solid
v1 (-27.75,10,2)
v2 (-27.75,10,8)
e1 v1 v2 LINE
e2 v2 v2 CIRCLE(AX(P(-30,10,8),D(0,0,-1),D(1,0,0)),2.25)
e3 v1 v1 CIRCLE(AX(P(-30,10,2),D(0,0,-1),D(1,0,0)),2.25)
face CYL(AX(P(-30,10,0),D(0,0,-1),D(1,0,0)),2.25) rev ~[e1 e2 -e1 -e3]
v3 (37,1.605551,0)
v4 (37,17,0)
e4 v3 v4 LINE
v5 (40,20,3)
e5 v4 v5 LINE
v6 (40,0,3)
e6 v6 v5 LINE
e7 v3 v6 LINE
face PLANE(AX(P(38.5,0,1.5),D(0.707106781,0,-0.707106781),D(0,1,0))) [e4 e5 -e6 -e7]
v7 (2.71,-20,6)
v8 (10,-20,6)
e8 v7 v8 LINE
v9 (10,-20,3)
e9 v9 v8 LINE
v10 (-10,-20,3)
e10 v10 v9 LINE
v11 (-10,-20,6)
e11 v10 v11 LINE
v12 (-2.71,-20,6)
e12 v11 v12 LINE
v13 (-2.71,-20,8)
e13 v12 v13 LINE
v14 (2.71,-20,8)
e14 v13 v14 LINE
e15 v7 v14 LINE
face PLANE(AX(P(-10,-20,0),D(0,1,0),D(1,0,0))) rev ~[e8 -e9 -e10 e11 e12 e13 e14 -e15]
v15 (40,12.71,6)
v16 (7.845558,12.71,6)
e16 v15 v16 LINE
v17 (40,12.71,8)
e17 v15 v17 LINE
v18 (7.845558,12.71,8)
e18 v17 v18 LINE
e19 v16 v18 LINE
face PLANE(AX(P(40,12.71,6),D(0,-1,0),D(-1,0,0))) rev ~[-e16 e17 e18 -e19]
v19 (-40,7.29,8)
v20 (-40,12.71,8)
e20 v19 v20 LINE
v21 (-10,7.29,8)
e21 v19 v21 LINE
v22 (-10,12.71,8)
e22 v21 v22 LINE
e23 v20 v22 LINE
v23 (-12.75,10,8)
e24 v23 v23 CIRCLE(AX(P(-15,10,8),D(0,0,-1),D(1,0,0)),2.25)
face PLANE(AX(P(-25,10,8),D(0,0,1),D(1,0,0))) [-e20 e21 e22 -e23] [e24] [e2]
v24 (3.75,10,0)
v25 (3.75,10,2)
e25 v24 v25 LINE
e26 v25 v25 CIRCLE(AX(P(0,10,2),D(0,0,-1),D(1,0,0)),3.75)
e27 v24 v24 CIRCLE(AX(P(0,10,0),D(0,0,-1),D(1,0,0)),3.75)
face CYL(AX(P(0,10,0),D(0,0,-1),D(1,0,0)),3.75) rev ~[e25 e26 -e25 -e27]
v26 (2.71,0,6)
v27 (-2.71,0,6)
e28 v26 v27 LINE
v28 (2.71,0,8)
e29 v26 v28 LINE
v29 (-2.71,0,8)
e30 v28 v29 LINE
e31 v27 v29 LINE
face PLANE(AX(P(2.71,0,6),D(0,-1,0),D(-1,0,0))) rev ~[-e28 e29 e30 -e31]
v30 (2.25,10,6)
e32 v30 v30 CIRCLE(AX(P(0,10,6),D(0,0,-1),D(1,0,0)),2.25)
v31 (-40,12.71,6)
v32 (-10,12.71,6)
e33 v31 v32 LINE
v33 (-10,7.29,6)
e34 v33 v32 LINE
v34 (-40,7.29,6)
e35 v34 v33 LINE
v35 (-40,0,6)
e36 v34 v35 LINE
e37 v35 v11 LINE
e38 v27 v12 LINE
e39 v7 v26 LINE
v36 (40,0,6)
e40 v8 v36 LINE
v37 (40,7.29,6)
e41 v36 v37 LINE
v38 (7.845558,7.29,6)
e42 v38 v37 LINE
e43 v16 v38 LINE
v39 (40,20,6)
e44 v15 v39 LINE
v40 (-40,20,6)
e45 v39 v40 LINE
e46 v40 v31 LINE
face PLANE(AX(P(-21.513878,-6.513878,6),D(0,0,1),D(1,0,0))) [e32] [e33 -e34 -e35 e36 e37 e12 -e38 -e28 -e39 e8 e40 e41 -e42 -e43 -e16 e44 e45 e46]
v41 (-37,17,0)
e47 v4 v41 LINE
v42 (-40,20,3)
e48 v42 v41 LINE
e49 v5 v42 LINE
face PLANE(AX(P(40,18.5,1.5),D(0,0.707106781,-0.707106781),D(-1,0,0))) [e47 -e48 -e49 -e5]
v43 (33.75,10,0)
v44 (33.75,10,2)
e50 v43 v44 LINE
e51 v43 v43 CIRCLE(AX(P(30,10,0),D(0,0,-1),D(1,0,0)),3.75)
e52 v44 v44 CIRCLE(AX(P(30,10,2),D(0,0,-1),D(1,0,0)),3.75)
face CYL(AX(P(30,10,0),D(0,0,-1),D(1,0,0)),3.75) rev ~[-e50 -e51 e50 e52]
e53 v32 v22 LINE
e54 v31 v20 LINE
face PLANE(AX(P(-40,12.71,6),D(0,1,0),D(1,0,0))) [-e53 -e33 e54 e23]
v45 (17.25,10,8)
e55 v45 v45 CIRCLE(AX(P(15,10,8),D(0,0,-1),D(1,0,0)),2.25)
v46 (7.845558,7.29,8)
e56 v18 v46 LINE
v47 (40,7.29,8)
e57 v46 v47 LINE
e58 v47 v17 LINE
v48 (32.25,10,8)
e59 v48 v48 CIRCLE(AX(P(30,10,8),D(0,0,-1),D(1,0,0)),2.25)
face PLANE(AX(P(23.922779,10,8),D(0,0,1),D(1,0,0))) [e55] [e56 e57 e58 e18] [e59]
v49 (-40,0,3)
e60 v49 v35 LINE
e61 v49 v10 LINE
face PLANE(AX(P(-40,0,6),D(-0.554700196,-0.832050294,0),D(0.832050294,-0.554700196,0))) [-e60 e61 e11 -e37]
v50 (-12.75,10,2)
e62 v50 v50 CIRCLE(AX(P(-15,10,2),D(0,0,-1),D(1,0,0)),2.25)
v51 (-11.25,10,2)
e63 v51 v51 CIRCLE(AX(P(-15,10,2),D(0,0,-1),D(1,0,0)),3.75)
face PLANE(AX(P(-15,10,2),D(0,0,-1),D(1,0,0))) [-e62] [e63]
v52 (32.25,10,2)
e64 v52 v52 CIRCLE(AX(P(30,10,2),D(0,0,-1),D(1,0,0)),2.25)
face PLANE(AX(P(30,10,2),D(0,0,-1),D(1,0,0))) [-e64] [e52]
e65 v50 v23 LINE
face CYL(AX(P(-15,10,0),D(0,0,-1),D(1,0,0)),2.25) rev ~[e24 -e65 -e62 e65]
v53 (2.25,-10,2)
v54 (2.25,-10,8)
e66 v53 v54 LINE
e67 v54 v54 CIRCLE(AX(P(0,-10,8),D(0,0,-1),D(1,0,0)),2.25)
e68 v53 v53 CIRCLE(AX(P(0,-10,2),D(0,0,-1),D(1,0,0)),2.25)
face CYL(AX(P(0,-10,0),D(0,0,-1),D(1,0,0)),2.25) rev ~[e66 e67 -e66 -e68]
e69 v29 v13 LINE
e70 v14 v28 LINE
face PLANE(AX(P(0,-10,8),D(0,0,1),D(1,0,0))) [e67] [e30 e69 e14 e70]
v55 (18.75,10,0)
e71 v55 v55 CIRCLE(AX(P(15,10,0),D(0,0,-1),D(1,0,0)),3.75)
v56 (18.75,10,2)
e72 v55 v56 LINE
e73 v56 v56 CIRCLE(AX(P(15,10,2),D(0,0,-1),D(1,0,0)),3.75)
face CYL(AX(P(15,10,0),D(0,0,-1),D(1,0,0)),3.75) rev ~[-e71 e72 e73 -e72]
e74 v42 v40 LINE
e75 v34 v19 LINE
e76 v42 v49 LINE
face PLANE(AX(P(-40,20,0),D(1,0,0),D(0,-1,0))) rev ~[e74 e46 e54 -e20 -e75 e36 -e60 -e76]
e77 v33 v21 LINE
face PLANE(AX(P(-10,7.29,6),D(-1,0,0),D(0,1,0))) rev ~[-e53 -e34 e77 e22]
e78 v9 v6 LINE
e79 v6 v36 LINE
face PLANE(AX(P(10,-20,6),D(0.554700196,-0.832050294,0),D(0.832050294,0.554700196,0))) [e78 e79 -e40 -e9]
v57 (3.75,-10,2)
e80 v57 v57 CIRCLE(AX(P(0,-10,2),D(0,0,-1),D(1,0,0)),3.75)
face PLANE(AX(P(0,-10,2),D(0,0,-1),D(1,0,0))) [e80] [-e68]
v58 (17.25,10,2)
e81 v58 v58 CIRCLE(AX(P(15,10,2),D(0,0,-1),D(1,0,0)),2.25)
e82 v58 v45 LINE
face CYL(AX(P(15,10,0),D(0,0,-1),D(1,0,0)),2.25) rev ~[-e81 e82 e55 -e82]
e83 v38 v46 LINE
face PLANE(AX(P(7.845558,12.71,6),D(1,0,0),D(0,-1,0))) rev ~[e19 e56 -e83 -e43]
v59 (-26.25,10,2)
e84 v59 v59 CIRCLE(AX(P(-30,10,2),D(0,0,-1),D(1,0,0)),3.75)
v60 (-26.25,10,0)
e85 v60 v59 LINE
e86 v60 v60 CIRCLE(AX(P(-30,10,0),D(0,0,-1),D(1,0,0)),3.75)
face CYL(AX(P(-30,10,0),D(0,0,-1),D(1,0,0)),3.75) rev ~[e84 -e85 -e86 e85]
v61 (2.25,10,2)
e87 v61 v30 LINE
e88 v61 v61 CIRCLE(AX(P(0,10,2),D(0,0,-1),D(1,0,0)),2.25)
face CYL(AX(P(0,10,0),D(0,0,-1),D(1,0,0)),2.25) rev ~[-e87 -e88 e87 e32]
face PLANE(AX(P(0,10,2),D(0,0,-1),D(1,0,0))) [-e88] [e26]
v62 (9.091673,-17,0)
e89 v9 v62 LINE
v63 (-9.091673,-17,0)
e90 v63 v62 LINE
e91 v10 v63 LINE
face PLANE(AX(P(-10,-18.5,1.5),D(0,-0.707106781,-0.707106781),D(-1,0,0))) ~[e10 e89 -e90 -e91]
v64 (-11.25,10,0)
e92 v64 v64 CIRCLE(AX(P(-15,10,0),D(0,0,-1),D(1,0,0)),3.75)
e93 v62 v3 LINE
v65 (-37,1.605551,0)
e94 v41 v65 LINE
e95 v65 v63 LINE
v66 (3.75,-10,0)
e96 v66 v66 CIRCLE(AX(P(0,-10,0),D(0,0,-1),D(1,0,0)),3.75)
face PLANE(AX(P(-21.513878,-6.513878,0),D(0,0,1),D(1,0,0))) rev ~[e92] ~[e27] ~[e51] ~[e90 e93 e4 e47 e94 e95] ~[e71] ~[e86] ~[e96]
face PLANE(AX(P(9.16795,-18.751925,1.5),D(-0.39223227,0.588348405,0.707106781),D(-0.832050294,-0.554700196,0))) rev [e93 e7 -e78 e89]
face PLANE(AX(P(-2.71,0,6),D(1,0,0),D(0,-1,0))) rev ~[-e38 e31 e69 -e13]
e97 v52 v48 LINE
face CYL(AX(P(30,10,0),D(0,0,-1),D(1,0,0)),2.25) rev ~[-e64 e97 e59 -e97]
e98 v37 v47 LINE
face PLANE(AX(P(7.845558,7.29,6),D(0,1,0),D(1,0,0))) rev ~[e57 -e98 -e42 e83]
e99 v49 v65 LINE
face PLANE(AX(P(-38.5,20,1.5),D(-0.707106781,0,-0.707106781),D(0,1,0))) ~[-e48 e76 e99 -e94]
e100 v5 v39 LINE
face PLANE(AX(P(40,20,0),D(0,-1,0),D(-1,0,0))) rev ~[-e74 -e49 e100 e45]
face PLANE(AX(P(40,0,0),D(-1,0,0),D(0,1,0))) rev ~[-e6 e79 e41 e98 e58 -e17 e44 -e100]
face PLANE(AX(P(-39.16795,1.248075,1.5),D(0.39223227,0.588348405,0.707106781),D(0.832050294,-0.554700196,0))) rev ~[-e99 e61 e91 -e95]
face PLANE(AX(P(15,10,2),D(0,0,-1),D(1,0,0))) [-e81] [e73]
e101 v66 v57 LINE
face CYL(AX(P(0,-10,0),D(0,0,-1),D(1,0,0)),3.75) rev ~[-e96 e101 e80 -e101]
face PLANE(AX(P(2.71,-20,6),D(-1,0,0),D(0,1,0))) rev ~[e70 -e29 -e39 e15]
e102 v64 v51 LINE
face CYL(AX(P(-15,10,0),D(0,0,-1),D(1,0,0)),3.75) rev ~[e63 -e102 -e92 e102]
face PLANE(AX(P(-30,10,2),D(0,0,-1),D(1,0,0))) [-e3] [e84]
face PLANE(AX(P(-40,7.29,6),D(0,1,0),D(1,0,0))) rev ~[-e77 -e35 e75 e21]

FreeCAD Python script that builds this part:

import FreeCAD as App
import Part
import Sketcher
from FreeCAD import Vector


def edges_at(feature, points):
    """Names of the edges that pass closest to the given points."""
    edges = feature.Shape.Edges
    near = lambda p: min(range(len(edges)), key=lambda i: edges[i].distToShape(Part.Vertex(*p))[0])
    return sorted({f"Edge{near(p) + 1}" for p in points})

doc = App.newDocument("Part")
body = doc.addObject("PartDesign::Body", "Body")

sketch1 = body.newObject("Sketcher::SketchObject", "Sketch")
sketch1.AttachmentSupport = (doc.getObject("XY_Plane"), [""])
sketch1.MapMode = "FlatFace"
sketch1.addGeometry([
    Part.LineSegment(Vector(-40, 0, 0), Vector(-10, 0, 0)),
    Part.LineSegment(Vector(-10, 0, 0), Vector(-10, -20, 0)),
    Part.LineSegment(Vector(-10, -20, 0), Vector(10, -20, 0)),
    Part.LineSegment(Vector(10, -20, 0), Vector(10, 0, 0)),
    Part.LineSegment(Vector(10, 0, 0), Vector(40, 0, 0)),
    Part.LineSegment(Vector(40, 0, 0), Vector(40, 20, 0)),
    Part.LineSegment(Vector(40, 20, 0), Vector(-40, 20, 0)),
    Part.LineSegment(Vector(-40, 20, 0), Vector(-40, 0, 0)),
], False)
sketch1.addConstraint([
    Sketcher.Constraint("Coincident", 0, 2, 1, 1),
    Sketcher.Constraint("Coincident", 1, 2, 2, 1),
    Sketcher.Constraint("Coincident", 2, 2, 3, 1),
    Sketcher.Constraint("Coincident", 3, 2, 4, 1),
    Sketcher.Constraint("Coincident", 4, 2, 5, 1),
    Sketcher.Constraint("Coincident", 5, 2, 6, 1),
    Sketcher.Constraint("Coincident", 6, 2, 7, 1),
    Sketcher.Constraint("Coincident", 7, 2, 0, 1),
    Sketcher.Constraint("Horizontal", 0),
    Sketcher.Constraint("Vertical", 1),
    Sketcher.Constraint("Horizontal", 2),
    Sketcher.Constraint("Vertical", 3),
    Sketcher.Constraint("Horizontal", 4),
    Sketcher.Constraint("Vertical", 5),
    Sketcher.Constraint("Horizontal", 6),
    Sketcher.Constraint("Vertical", 7),
    Sketcher.Constraint("Symmetric", 0, 2, 3, 2, -1, 1),
    Sketcher.Constraint("Symmetric", 4, 2, 7, 2, -2),
    Sketcher.Constraint("Equal", 2, 1),
    Sketcher.Constraint("Equal", 3, 5),
    Sketcher.Constraint("DistanceX", 0, 1, 0, 2, 30.0),
    Sketcher.Constraint("DistanceX", 2, 1, 2, 2, 20.0),
])
pad1 = body.newObject("PartDesign::Pad", "Pad")
pad1.Profile = sketch1
pad1.Length = 6

sketch2 = body.newObject("Sketcher::SketchObject", "Sketch001")
sketch2.AttachmentSupport = (doc.getObject("XY_Plane"), [""])
sketch2.MapMode = "FlatFace"
sketch2.AttachmentOffset = App.Placement(Vector(0, 0, 6), App.Rotation())
sketch2.addGeometry([
    Part.LineSegment(Vector(3, 0, 0), Vector(-3, 0, 0)),
    Part.LineSegment(Vector(-3, 0, 0), Vector(-3, -20, 0)),
    Part.LineSegment(Vector(-3, -20, 0), Vector(3, -20, 0)),
    Part.LineSegment(Vector(3, -20, 0), Vector(3, 0, 0)),
    Part.LineSegment(Vector(8, 13, 0), Vector(8, 7, 0)),
    Part.LineSegment(Vector(8, 7, 0), Vector(40, 7, 0)),
    Part.LineSegment(Vector(40, 7, 0), Vector(40, 13, 0)),
    Part.LineSegment(Vector(40, 13, 0), Vector(8, 13, 0)),
    Part.LineSegment(Vector(-40, 13, 0), Vector(-40, 7, 0)),
    Part.LineSegment(Vector(-40, 7, 0), Vector(-10, 7, 0)),
    Part.LineSegment(Vector(-10, 7, 0), Vector(-10, 13, 0)),
    Part.LineSegment(Vector(-10, 13, 0), Vector(-40, 13, 0)),
], False)
sketch2.addConstraint([
    Sketcher.Constraint("Coincident", 0, 2, 1, 1),
    Sketcher.Constraint("Coincident", 1, 2, 2, 1),
    Sketcher.Constraint("Coincident", 2, 2, 3, 1),
    Sketcher.Constraint("Coincident", 3, 2, 0, 1),
    Sketcher.Constraint("Coincident", 4, 2, 5, 1),
    Sketcher.Constraint("Coincident", 5, 2, 6, 1),
    Sketcher.Constraint("Coincident", 6, 2, 7, 1),
    Sketcher.Constraint("Coincident", 7, 2, 4, 1),
    Sketcher.Constraint("Coincident", 8, 2, 9, 1),
    Sketcher.Constraint("Coincident", 9, 2, 10, 1),
    Sketcher.Constraint("Coincident", 10, 2, 11, 1),
    Sketcher.Constraint("Coincident", 11, 2, 8, 1),
    Sketcher.Constraint("Horizontal", 0),
    Sketcher.Constraint("Vertical", 1),
    Sketcher.Constraint("Horizontal", 2),
    Sketcher.Constraint("Vertical", 3),
    Sketcher.Constraint("Vertical", 4),
    Sketcher.Constraint("Horizontal", 5),
    Sketcher.Constraint("Vertical", 6),
    Sketcher.Constraint("Horizontal", 7),
    Sketcher.Constraint("Vertical", 8),
    Sketcher.Constraint("Horizontal", 9),
    Sketcher.Constraint("Vertical", 10),
    Sketcher.Constraint("Horizontal", 11),
    Sketcher.Constraint("Symmetric", 0, 2, 3, 2, -1, 1),
    Sketcher.Constraint("Symmetric", 5, 2, 8, 2, -2),
    Sketcher.Constraint("Horizontal", 7, 2, 10, 2),
    Sketcher.Constraint("Equal", 2, 4),
    Sketcher.Constraint("DistanceX", 9, 1, 9, 2, 30.0),
    Sketcher.Constraint("DistanceY", 1, 2, 1, 1, 20.0),
    Sketcher.Constraint("DistanceX", -1, 1, 5, 2, 40.0),
    Sketcher.Constraint("DistanceX", 0, 2, 0, 1, 5.42),
    Sketcher.Constraint("DistanceY", -1, 1, 4, 2, 7.29),
    Sketcher.Constraint("DistanceX", 5, 1, 5, 2, 32.154442),
])
pad2 = body.newObject("PartDesign::Pad", "Pad001")
pad2.Profile = sketch2
pad2.Length = 2

sketch3 = body.newObject("Sketcher::SketchObject", "Sketch002")
sketch3.AttachmentSupport = (doc.getObject("XY_Plane"), [""])
sketch3.MapMode = "FlatFace"
sketch3.addGeometry([
    Part.Circle(Vector(-30, 10, 0), Vector(0, 0, 1), 2.2),
    Part.Circle(Vector(0, 10, 0), Vector(0, 0, 1), 2.2),
    Part.Circle(Vector(0, -10, 0), Vector(0, 0, 1), 2.2),
    Part.Circle(Vector(30, 10, 0), Vector(0, 0, 1), 2.2),
    Part.Circle(Vector(15, 10, 0), Vector(0, 0, 1), 2.2),
    Part.Circle(Vector(-15, 10, 0), Vector(0, 0, 1), 2.2),
], False)
sketch3.addConstraint([
    Sketcher.Constraint("Equal", 0, 1),
    Sketcher.Constraint("Equal", 1, 2),
    Sketcher.Constraint("Equal", 2, 3),
    Sketcher.Constraint("Equal", 3, 4),
    Sketcher.Constraint("Equal", 4, 5),
    Sketcher.Constraint("Symmetric", 1, 3, 2, 3, -1, 1),
    Sketcher.Constraint("Symmetric", 0, 3, 3, 3, -2),
    Sketcher.Constraint("Symmetric", 4, 3, 5, 3, -2),
    Sketcher.Constraint("PointOnObject", 1, 3, -2),
    Sketcher.Constraint("Horizontal", 0, 3, 1, 3),
    Sketcher.Constraint("Horizontal", 3, 3, 4, 3),
    Sketcher.Constraint("Diameter", 0, 4.5),
    Sketcher.Constraint("DistanceX", 0, 3, -1, 1, 30.0),
    Sketcher.Constraint("DistanceY", -1, 1, 0, 3, 10.0),
    Sketcher.Constraint("DistanceX", -1, 1, 4, 3, 15.0),
])
pocket1 = body.newObject("PartDesign::Pocket", "Pocket")
pocket1.Profile = sketch3
pocket1.Type = "ThroughAll"
pocket1.Reversed = True

sketch4 = body.newObject("Sketcher::SketchObject", "Sketch003")
sketch4.AttachmentSupport = (doc.getObject("XY_Plane"), [""])
sketch4.MapMode = "FlatFace"
sketch4.addGeometry([
    Part.Circle(Vector(0, -10, 0), Vector(0, 0, 1), 3.8),
    Part.Circle(Vector(0, 10, 0), Vector(0, 0, 1), 3.8),
    Part.Circle(Vector(30, 10, 0), Vector(0, 0, 1), 3.8),
    Part.Circle(Vector(-30, 10, 0), Vector(0, 0, 1), 3.8),
    Part.Circle(Vector(-15, 10, 0), Vector(0, 0, 1), 3.8),
    Part.Circle(Vector(15, 10, 0), Vector(0, 0, 1), 3.8),
], False)
sketch4.addConstraint([
    Sketcher.Constraint("Equal", 0, 1),
    Sketcher.Constraint("Equal", 1, 2),
    Sketcher.Constraint("Equal", 2, 3),
    Sketcher.Constraint("Equal", 3, 4),
    Sketcher.Constraint("Equal", 4, 5),
    Sketcher.Constraint("Symmetric", 0, 3, 1, 3, -1, 1),
    Sketcher.Constraint("Symmetric", 2, 3, 3, 3, -2),
    Sketcher.Constraint("Symmetric", 4, 3, 5, 3, -2),
    Sketcher.Constraint("PointOnObject", 0, 3, -2),
    Sketcher.Constraint("Horizontal", 1, 3, 2, 3),
    Sketcher.Constraint("Horizontal", 3, 3, 4, 3),
    Sketcher.Constraint("Diameter", 0, 7.5),
    Sketcher.Constraint("DistanceY", 0, 3, -1, 1, 10.0),
    Sketcher.Constraint("DistanceX", -1, 1, 2, 3, 30.0),
    Sketcher.Constraint("DistanceX", 4, 3, -1, 1, 15.0),
])
pocket2 = body.newObject("PartDesign::Pocket", "Pocket001")
pocket2.Profile = sketch4
pocket2.Length = 2
pocket2.Reversed = True

sketch5 = body.newObject("Sketcher::SketchObject", "Sketch004")
sketch5.AttachmentSupport = (doc.getObject("XY_Plane"), [""])
sketch5.MapMode = "FlatFace"
sketch5.AttachmentOffset = App.Placement(Vector(0, 0, 6), App.Rotation())
sketch5.addGeometry([
    Part.LineSegment(Vector(-10, 0, 0), Vector(-40, 0, 0)),
    Part.LineSegment(Vector(-40, 0, 0), Vector(-10, -20, 0)),
    Part.LineSegment(Vector(-10, -20, 0), Vector(-10, 0, 0)),
    Part.LineSegment(Vector(10, 0, 0), Vector(10, -20, 0)),
    Part.LineSegment(Vector(10, -20, 0), Vector(40, 0, 0)),
    Part.LineSegment(Vector(40, 0, 0), Vector(10, 0, 0)),
], False)
sketch5.addConstraint([
    Sketcher.Constraint("Coincident", 0, 2, 1, 1),
    Sketcher.Constraint("Coincident", 1, 2, 2, 1),
    Sketcher.Constraint("Coincident", 2, 2, 0, 1),
    Sketcher.Constraint("Coincident", 3, 2, 4, 1),
    Sketcher.Constraint("Coincident", 4, 2, 5, 1),
    Sketcher.Constraint("Coincident", 5, 2, 3, 1),
    Sketcher.Constraint("Horizontal", 0),
    Sketcher.Constraint("Vertical", 2),
    Sketcher.Constraint("Vertical", 3),
    Sketcher.Constraint("Horizontal", 5),
    Sketcher.Constraint("Symmetric", 0, 2, 4, 2, -1, 1),
    Sketcher.Constraint("Symmetric", 1, 2, 3, 2, -2),
    Sketcher.Constraint("PointOnObject", 0, 2, -1),
    Sketcher.Constraint("DistanceX", 0, 2, 0, 1, 30.0),
    Sketcher.Constraint("DistanceY", 2, 1, 2, 2, 20.0),
    Sketcher.Constraint("DistanceX", 0, 2, -1, 1, 40.0),
])
pad3 = body.newObject("PartDesign::Pad", "Pad002")
pad3.Profile = sketch5
pad3.Length = 6
pad3.Reversed = True
doc.recompute()

chamfer = body.newObject("PartDesign::Chamfer", "Chamfer")
chamfer.Base = (pad3, edges_at(pad3, [
    (-25, -10, 0),
    (0, -20, 0),
    (25, -10, 0),
    (40, 10, 0),
    (-40, 10, 0),
    (0, 20, 0),
]))
chamfer.Size = 3

doc.recompute()
